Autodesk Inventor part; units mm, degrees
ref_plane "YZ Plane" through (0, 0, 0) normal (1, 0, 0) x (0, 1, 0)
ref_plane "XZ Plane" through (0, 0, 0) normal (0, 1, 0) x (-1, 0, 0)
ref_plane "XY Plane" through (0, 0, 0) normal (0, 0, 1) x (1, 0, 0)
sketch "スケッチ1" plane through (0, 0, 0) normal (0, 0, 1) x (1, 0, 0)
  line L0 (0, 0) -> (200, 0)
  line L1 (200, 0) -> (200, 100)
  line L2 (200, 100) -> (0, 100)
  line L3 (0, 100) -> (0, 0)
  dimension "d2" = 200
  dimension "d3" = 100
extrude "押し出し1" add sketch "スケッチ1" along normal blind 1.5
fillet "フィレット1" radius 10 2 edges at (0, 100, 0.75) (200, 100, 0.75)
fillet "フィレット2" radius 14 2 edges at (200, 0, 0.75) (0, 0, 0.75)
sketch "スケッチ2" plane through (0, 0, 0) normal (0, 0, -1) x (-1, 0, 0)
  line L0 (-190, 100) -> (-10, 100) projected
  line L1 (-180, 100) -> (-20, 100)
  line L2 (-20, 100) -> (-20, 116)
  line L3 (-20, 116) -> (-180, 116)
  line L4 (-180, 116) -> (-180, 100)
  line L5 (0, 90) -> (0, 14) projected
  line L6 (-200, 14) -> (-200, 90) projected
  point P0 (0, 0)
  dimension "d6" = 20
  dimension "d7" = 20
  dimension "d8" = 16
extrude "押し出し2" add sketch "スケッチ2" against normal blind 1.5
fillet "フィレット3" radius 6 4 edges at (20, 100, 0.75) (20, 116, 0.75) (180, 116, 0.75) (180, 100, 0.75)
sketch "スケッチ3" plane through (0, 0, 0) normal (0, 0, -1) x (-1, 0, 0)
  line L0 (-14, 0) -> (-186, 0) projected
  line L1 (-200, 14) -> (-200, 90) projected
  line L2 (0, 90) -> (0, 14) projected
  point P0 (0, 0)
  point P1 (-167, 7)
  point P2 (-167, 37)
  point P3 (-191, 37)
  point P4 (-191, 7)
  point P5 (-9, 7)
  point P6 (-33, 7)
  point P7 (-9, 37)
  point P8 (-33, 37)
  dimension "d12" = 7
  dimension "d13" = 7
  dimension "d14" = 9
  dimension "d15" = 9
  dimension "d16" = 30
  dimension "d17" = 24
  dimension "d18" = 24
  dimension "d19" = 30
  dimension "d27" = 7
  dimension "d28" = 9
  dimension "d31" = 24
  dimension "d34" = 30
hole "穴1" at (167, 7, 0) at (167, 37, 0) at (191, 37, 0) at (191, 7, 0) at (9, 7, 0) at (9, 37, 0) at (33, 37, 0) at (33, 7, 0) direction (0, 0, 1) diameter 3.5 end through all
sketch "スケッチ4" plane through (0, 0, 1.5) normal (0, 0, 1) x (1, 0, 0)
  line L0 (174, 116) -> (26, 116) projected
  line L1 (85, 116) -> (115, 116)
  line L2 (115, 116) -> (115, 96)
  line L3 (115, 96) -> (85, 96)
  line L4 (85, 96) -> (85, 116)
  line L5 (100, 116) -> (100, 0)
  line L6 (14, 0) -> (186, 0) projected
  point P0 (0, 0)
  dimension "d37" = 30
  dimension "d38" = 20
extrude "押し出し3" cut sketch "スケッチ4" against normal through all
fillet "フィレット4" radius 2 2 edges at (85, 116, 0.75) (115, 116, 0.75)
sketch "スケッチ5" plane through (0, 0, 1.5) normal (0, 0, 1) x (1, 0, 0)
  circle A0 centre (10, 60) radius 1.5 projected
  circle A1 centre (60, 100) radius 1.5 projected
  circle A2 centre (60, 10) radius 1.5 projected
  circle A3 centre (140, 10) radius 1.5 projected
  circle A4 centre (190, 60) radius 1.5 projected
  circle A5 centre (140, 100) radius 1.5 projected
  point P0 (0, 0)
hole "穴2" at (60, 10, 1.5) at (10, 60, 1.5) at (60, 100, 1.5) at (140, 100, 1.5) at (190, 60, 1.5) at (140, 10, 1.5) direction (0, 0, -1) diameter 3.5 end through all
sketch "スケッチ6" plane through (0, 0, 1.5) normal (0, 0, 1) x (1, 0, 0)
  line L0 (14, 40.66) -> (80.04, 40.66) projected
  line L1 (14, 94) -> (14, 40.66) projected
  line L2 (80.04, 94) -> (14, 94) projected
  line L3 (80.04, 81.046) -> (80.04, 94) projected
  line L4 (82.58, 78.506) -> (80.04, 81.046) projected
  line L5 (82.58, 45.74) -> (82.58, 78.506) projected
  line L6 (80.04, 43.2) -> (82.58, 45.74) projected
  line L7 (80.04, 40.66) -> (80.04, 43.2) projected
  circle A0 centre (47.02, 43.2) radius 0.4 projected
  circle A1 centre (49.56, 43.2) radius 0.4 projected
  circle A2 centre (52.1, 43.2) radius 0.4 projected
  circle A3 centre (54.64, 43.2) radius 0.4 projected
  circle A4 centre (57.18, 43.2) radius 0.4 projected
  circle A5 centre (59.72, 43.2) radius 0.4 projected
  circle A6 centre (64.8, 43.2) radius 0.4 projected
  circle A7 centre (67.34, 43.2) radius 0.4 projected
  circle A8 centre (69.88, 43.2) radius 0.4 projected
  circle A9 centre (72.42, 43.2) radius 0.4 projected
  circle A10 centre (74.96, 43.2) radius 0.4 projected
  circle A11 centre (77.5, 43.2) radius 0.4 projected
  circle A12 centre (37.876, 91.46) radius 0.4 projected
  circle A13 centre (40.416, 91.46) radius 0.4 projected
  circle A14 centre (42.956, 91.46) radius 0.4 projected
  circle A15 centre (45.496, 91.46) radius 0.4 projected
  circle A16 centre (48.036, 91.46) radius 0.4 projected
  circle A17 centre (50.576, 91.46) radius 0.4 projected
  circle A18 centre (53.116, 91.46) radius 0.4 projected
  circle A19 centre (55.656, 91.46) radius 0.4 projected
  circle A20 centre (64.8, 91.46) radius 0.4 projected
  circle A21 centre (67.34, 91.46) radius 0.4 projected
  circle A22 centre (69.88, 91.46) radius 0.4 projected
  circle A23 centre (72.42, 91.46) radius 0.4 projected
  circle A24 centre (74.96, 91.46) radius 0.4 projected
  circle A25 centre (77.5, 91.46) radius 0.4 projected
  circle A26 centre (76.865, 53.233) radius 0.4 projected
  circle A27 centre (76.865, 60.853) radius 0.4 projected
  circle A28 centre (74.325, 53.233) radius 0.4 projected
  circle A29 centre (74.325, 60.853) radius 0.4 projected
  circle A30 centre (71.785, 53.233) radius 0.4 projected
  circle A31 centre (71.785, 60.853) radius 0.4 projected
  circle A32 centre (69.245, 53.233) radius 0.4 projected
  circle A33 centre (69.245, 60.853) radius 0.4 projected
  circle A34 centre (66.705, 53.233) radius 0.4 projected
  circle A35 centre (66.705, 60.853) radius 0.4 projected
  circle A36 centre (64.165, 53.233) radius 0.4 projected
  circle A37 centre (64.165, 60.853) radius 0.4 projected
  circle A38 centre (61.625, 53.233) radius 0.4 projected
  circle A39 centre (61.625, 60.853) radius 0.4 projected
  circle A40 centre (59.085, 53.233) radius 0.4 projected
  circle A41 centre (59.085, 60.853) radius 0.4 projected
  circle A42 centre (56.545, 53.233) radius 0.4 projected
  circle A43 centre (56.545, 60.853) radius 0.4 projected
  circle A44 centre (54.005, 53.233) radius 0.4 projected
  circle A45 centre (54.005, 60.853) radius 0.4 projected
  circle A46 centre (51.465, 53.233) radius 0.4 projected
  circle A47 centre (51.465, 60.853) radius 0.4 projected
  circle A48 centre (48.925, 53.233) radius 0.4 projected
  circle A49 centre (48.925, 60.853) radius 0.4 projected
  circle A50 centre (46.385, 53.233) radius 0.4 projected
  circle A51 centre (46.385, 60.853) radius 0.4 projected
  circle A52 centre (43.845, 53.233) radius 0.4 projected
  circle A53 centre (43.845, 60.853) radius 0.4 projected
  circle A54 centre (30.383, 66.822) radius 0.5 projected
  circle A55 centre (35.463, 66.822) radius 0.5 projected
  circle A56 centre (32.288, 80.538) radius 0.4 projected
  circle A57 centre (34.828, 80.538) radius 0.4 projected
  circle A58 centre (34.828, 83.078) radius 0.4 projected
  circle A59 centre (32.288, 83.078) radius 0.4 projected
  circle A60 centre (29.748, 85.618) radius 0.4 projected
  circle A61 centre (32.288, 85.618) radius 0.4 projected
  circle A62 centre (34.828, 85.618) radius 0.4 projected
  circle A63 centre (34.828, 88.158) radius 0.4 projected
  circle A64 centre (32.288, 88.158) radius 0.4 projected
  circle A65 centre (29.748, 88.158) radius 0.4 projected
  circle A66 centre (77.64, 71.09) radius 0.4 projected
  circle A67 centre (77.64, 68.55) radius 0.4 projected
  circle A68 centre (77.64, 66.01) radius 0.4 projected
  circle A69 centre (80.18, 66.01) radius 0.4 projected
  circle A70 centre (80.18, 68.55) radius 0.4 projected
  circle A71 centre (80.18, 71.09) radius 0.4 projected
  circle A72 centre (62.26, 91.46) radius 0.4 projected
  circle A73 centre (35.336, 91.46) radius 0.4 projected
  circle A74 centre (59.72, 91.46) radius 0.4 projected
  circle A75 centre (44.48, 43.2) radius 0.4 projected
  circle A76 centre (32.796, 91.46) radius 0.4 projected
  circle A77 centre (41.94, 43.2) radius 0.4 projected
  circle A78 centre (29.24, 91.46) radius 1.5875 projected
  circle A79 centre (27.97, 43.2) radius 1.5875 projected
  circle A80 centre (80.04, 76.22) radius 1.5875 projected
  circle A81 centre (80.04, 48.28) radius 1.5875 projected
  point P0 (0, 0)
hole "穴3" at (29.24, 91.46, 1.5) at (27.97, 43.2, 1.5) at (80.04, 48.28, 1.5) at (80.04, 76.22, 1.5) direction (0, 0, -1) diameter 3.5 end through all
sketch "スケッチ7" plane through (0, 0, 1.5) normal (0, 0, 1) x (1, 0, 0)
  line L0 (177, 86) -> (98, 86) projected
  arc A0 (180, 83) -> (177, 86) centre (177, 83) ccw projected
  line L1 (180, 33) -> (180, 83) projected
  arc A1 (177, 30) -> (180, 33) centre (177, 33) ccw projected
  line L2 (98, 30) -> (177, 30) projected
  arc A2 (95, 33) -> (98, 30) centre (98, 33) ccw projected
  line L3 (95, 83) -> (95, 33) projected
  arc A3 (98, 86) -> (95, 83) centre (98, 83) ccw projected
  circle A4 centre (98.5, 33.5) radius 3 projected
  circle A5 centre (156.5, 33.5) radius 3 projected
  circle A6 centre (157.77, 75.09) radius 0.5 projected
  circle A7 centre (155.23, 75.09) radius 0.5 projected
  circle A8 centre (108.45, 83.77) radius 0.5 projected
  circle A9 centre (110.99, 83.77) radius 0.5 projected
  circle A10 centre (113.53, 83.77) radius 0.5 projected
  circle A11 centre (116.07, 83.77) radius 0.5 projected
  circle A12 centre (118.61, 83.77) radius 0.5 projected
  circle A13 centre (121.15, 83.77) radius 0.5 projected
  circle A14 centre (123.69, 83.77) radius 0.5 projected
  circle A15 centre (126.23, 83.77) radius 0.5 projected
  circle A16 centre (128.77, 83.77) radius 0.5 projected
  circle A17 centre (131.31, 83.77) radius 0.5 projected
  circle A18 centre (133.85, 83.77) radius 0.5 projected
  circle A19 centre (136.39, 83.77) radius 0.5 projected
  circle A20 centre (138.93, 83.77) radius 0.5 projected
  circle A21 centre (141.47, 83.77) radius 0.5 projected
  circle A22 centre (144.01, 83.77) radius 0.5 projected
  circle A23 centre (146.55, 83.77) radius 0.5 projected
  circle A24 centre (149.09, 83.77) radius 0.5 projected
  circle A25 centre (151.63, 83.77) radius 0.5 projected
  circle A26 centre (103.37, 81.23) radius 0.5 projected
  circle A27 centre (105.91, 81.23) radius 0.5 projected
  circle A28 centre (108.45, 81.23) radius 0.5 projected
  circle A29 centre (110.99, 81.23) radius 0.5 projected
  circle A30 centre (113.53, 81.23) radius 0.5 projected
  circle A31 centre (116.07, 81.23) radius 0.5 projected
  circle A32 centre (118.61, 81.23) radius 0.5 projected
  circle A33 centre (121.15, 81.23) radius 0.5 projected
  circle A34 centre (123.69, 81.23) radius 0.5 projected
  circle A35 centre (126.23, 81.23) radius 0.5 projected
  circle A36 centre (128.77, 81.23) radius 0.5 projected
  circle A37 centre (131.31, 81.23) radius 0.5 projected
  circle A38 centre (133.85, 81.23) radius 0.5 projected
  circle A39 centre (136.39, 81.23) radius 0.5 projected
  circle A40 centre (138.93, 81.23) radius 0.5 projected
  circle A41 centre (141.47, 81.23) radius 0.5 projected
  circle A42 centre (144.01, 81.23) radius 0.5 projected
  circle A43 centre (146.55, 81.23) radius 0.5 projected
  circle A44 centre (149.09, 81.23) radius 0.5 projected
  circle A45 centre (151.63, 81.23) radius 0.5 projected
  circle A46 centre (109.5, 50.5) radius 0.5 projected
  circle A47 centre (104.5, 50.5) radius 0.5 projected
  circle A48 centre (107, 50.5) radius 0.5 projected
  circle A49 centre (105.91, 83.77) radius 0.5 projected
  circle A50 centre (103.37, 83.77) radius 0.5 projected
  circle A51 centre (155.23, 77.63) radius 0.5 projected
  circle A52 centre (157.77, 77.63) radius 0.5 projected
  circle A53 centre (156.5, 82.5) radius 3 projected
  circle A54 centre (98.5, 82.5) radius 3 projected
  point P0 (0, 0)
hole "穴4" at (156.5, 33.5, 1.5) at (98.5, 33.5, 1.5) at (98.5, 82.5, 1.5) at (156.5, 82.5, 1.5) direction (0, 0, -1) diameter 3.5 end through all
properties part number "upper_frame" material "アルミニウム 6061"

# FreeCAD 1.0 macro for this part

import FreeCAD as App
import Part
import Sketcher
from FreeCAD import Vector
Q = App.Units.Quantity


def edges_at(feature, points):
    """Names of the edges that pass closest to the given points."""
    edges = feature.Shape.Edges
    near = lambda p: min(range(len(edges)), key=lambda i: edges[i].distToShape(Part.Vertex(*p))[0])
    return sorted({f"Edge{near(p) + 1}" for p in points})

doc = App.newDocument("Part")
params = doc.addObject("Spreadsheet::Sheet", "Params")
for row, (alias, value) in enumerate([
    ("sketch1_width", "200 mm"),
    ("sketch1_height", "100 mm"),
    ("pad1_length", "1.5 mm"),
    ("fillet_radius", "10 mm"),
    ("fillet2_radius", "14 mm"),
    ("sketch2_height", "16 mm"),
    ("sketch2_width", "160 mm"),
    ("pad2_length", "1.5 mm"),
    ("fillet3_radius", "6 mm"),
    ("sketch3_diameter", "3.5 mm"),
    ("hole_diameter", "3.5 mm"),
    ("sketch4_width", "30 mm"),
    ("sketch4_height", "20 mm"),
    ("fillet4_radius", "2 mm"),
    ("sketch5_diameter", "3.5 mm"),
    ("hole2_diameter", "3.5 mm"),
    ("sketch6_diameter", "3.5 mm"),
    ("hole3_diameter", "3.5 mm"),
    ("sketch7_diameter", "3.5 mm"),
    ("hole4_diameter", "3.5 mm"),
], start=1):
    params.set(f"A{row}", alias)
    params.set(f"B{row}", "=" + value)
    params.setAlias(f"B{row}", alias)

body = doc.addObject("PartDesign::Body", "Body")

sketch1 = doc.addObject("Sketcher::SketchObject", "Sketch")
body.addObject(sketch1)
sketch1.AttachmentSupport = (doc.XY_Plane, [""])
sketch1.MapMode = "FlatFace"
sketch1.addGeometry([
    Part.LineSegment(Vector(0, 100, 0), Vector(0, 0, 0)),
    Part.LineSegment(Vector(0, 0, 0), Vector(200, 0, 0)),
    Part.LineSegment(Vector(200, 0, 0), Vector(200, 100, 0)),
    Part.LineSegment(Vector(200, 100, 0), Vector(0, 100, 0)),
], False)
sketch1.addConstraint([
    Sketcher.Constraint("Coincident", 0, 2, 1, 1),
    Sketcher.Constraint("Coincident", 1, 2, 2, 1),
    Sketcher.Constraint("Coincident", 2, 2, 3, 1),
    Sketcher.Constraint("Coincident", 3, 2, 0, 1),
    Sketcher.Constraint("Vertical", 0),
    Sketcher.Constraint("Horizontal", 1),
    Sketcher.Constraint("Vertical", 2),
    Sketcher.Constraint("Horizontal", 3),
    Sketcher.Constraint("Coincident", 0, 2, -1, 1),
    Sketcher.Constraint("DistanceX", 1, 1, 1, 2, Q("200 mm")),
    Sketcher.Constraint("DistanceY", 0, 2, 0, 1, Q("100 mm")),
])
sketch1.setExpression("Constraints[9]", "Params.sketch1_width")
sketch1.setExpression("Constraints[10]", "Params.sketch1_height")
pad1 = doc.addObject("PartDesign::Pad", "Pad")
body.addObject(pad1)
pad1.Profile = sketch1
pad1.setExpression("Length", "Params.pad1_length")
doc.recompute()

fillet = doc.addObject("PartDesign::Fillet", "Fillet")
body.addObject(fillet)
fillet.Base = (pad1, edges_at(pad1, [(0, 100, 0.75), (200, 100, 0.75)]))
fillet.setExpression("Radius", "Params.fillet_radius")
doc.recompute()

fillet2 = doc.addObject("PartDesign::Fillet", "Fillet001")
body.addObject(fillet2)
fillet2.Base = (fillet, edges_at(fillet, [(200, 0, 0.75), (0, 0, 0.75)]))
fillet2.setExpression("Radius", "Params.fillet2_radius")

sketch2 = doc.addObject("Sketcher::SketchObject", "Sketch001")
body.addObject(sketch2)
sketch2.AttachmentSupport = (doc.XY_Plane, [""])
sketch2.MapMode = "FlatFace"
sketch2.addGeometry([
    Part.LineSegment(Vector(180, 116, 0), Vector(180, 100, 0)),
    Part.LineSegment(Vector(180, 100, 0), Vector(20, 100, 0)),
    Part.LineSegment(Vector(20, 100, 0), Vector(20, 116, 0)),
    Part.LineSegment(Vector(20, 116, 0), Vector(180, 116, 0)),
], False)
sketch2.addConstraint([
    Sketcher.Constraint("Coincident", 0, 2, 1, 1),
    Sketcher.Constraint("Coincident", 1, 2, 2, 1),
    Sketcher.Constraint("Coincident", 2, 2, 3, 1),
    Sketcher.Constraint("Coincident", 3, 2, 0, 1),
    Sketcher.Constraint("Vertical", 0),
    Sketcher.Constraint("Horizontal", 1),
    Sketcher.Constraint("Vertical", 2),
    Sketcher.Constraint("Horizontal", 3),
    Sketcher.Constraint("DistanceY", 0, 2, 0, 1, Q("16 mm")),
    Sketcher.Constraint("DistanceX", -1, 1, 1, 2, Q("20 mm")),
    Sketcher.Constraint("DistanceX", 1, 2, 1, 1, Q("160 mm")),
    Sketcher.Constraint("DistanceY", -1, 1, 0, 2, Q("100 mm")),
])
sketch2.setExpression("Constraints[8]", "Params.sketch2_height")
sketch2.setExpression("Constraints[10]", "Params.sketch2_width")
pad2 = doc.addObject("PartDesign::Pad", "Pad001")
body.addObject(pad2)
pad2.Profile = sketch2
pad2.setExpression("Length", "Params.pad2_length")
doc.recompute()

fillet3 = doc.addObject("PartDesign::Fillet", "Fillet002")
body.addObject(fillet3)
fillet3.Base = (pad2, edges_at(pad2, [
    (20, 100, 0.75),
    (20, 116, 0.75),
    (180, 116, 0.75),
    (180, 100, 0.75),
]))
fillet3.setExpression("Radius", "Params.fillet3_radius")

sketch3 = doc.addObject("Sketcher::SketchObject", "Sketch002")
body.addObject(sketch3)
sketch3.AttachmentSupport = (doc.XY_Plane, [""])
sketch3.MapMode = "FlatFace"
sketch3.addGeometry([
    Part.Circle(Vector(167, 7, 0), Vector(0, 0, 1), 1.8),
    Part.Circle(Vector(167, 37, 0), Vector(0, 0, 1), 1.8),
    Part.Circle(Vector(191, 37, 0), Vector(0, 0, 1), 1.8),
    Part.Circle(Vector(191, 7, 0), Vector(0, 0, 1), 1.8),
    Part.Circle(Vector(9, 7, 0), Vector(0, 0, 1), 1.8),
    Part.Circle(Vector(9, 37, 0), Vector(0, 0, 1), 1.8),
    Part.Circle(Vector(33, 37, 0), Vector(0, 0, 1), 1.8),
    Part.Circle(Vector(33, 7, 0), Vector(0, 0, 1), 1.8),
], False)
sketch3.addConstraint([
    Sketcher.Constraint("Equal", 0, 1),
    Sketcher.Constraint("Equal", 1, 2),
    Sketcher.Constraint("Equal", 2, 3),
    Sketcher.Constraint("Equal", 3, 4),
    Sketcher.Constraint("Equal", 4, 5),
    Sketcher.Constraint("Equal", 5, 6),
    Sketcher.Constraint("Equal", 6, 7),
    Sketcher.Constraint("Horizontal", 1, 3, 2, 3),
    Sketcher.Constraint("Horizontal", 0, 3, 3, 3),
    Sketcher.Constraint("Horizontal", 3, 3, 4, 3),
    Sketcher.Constraint("Horizontal", 2, 3, 5, 3),
    Sketcher.Constraint("Horizontal", 5, 3, 6, 3),
    Sketcher.Constraint("Horizontal", 4, 3, 7, 3),
    Sketcher.Constraint("Vertical", 0, 3, 1, 3),
    Sketcher.Constraint("Vertical", 2, 3, 3, 3),
    Sketcher.Constraint("Vertical", 4, 3, 5, 3),
    Sketcher.Constraint("Vertical", 6, 3, 7, 3),
    Sketcher.Constraint("Diameter", 0, Q("3.5 mm")),
    Sketcher.Constraint("DistanceX", -1, 1, 0, 3, Q("167 mm")),
    Sketcher.Constraint("DistanceY", -1, 1, 0, 3, Q("7 mm")),
    Sketcher.Constraint("DistanceY", -1, 1, 1, 3, Q("37 mm")),
    Sketcher.Constraint("DistanceX", -1, 1, 2, 3, Q("191 mm")),
    Sketcher.Constraint("DistanceX", -1, 1, 4, 3, Q("9 mm")),
    Sketcher.Constraint("DistanceX", -1, 1, 6, 3, Q("33 mm")),
])
sketch3.setExpression("Constraints[17]", "Params.sketch3_diameter")
doc.recompute()
hole = doc.addObject("PartDesign::Hole", "Hole")
body.addObject(hole)
hole.Profile = sketch3
hole.ThreadType = "None"
hole.setExpression("Diameter", "Params.hole_diameter")
hole.DepthType = "ThroughAll"
hole.Reversed = True

sketch4 = doc.addObject("Sketcher::SketchObject", "Sketch003")
body.addObject(sketch4)
sketch4.AttachmentSupport = (doc.XY_Plane, [""])
sketch4.MapMode = "FlatFace"
sketch4.AttachmentOffset = App.Placement(Vector(0, 0, 1.5), App.Rotation())
sketch4.addGeometry([
    Part.LineSegment(Vector(115, 96, 0), Vector(115, 116, 0)),
    Part.LineSegment(Vector(115, 116, 0), Vector(85, 116, 0)),
    Part.LineSegment(Vector(85, 116, 0), Vector(85, 96, 0)),
    Part.LineSegment(Vector(85, 96, 0), Vector(115, 96, 0)),
], False)
sketch4.addConstraint([
    Sketcher.Constraint("Coincident", 0, 2, 1, 1),
    Sketcher.Constraint("Coincident", 1, 2, 2, 1),
    Sketcher.Constraint("Coincident", 2, 2, 3, 1),
    Sketcher.Constraint("Coincident", 3, 2, 0, 1),
    Sketcher.Constraint("Vertical", 0),
    Sketcher.Constraint("Horizontal", 1),
    Sketcher.Constraint("Vertical", 2),
    Sketcher.Constraint("Horizontal", 3),
    Sketcher.Constraint("DistanceX", 1, 2, 1, 1, Q("30 mm")),
    Sketcher.Constraint("DistanceY", 0, 1, 0, 2, Q("20 mm")),
    Sketcher.Constraint("DistanceX", -1, 1, 0, 2, Q("115 mm")),
    Sketcher.Constraint("DistanceY", -1, 1, 0, 2, Q("116 mm")),
])
sketch4.setExpression("Constraints[8]", "Params.sketch4_width")
sketch4.setExpression("Constraints[9]", "Params.sketch4_height")
pocket1 = doc.addObject("PartDesign::Pocket", "Pocket")
body.addObject(pocket1)
pocket1.Profile = sketch4
pocket1.Type = "ThroughAll"
doc.recompute()

fillet4 = doc.addObject("PartDesign::Fillet", "Fillet003")
body.addObject(fillet4)
fillet4.Base = (pocket1, edges_at(pocket1, [(85, 116, 0.75), (115, 116, 0.75)]))
fillet4.setExpression("Radius", "Params.fillet4_radius")

sketch5 = doc.addObject("Sketcher::SketchObject", "Sketch004")
body.addObject(sketch5)
sketch5.AttachmentSupport = (doc.XY_Plane, [""])
sketch5.MapMode = "FlatFace"
sketch5.AttachmentOffset = App.Placement(Vector(0, 0, 1.5), App.Rotation())
sketch5.addGeometry([
    Part.Circle(Vector(60, 10, 0), Vector(0, 0, 1), 1.8),
    Part.Circle(Vector(10, 60, 0), Vector(0, 0, 1), 1.8),
    Part.Circle(Vector(60, 100, 0), Vector(0, 0, 1), 1.8),
    Part.Circle(Vector(140, 100, 0), Vector(0, 0, 1), 1.8),
    Part.Circle(Vector(190, 60, 0), Vector(0, 0, 1), 1.8),
    Part.Circle(Vector(140, 10, 0), Vector(0, 0, 1), 1.8),
], False)
sketch5.addConstraint([
    Sketcher.Constraint("Equal", 0, 1),
    Sketcher.Constraint("Equal", 1, 2),
    Sketcher.Constraint("Equal", 2, 3),
    Sketcher.Constraint("Equal", 3, 4),
    Sketcher.Constraint("Equal", 4, 5),
    Sketcher.Constraint("Horizontal", 2, 3, 3, 3),
    Sketcher.Constraint("Horizontal", 1, 3, 4, 3),
    Sketcher.Constraint("Horizontal", 0, 3, 5, 3),
    Sketcher.Constraint("Vertical", 0, 3, 2, 3),
    Sketcher.Constraint("Vertical", 3, 3, 5, 3),
    Sketcher.Constraint("Diameter", 0, Q("3.5 mm")),
    Sketcher.Constraint("DistanceX", -1, 1, 0, 3, Q("60 mm")),
    Sketcher.Constraint("DistanceY", -1, 1, 0, 3, Q("10 mm")),
    Sketcher.Constraint("DistanceX", -1, 1, 1, 3, Q("10 mm")),
    Sketcher.Constraint("DistanceY", -1, 1, 1, 3, Q("60 mm")),
    Sketcher.Constraint("DistanceY", -1, 1, 2, 3, Q("100 mm")),
    Sketcher.Constraint("DistanceX", -1, 1, 3, 3, Q("140 mm")),
    Sketcher.Constraint("DistanceX", -1, 1, 4, 3, Q("190 mm")),
])
sketch5.setExpression("Constraints[10]", "Params.sketch5_diameter")
doc.recompute()
hole2 = doc.addObject("PartDesign::Hole", "Hole001")
body.addObject(hole2)
hole2.Profile = sketch5
hole2.ThreadType = "None"
hole2.setExpression("Diameter", "Params.hole2_diameter")
hole2.DepthType = "ThroughAll"

sketch6 = doc.addObject("Sketcher::SketchObject", "Sketch005")
body.addObject(sketch6)
sketch6.AttachmentSupport = (doc.XY_Plane, [""])
sketch6.MapMode = "FlatFace"
sketch6.AttachmentOffset = App.Placement(Vector(0, 0, 1.5), App.Rotation())
sketch6.addGeometry([
    Part.Circle(Vector(29.2, 91.5, 0), Vector(0, 0, 1), 1.8),
    Part.Circle(Vector(28, 43.2, 0), Vector(0, 0, 1), 1.8),
    Part.Circle(Vector(80, 48.3, 0), Vector(0, 0, 1), 1.8),
    Part.Circle(Vector(80, 76.2, 0), Vector(0, 0, 1), 1.8),
], False)
sketch6.addConstraint([
    Sketcher.Constraint("Equal", 0, 1),
    Sketcher.Constraint("Equal", 1, 2),
    Sketcher.Constraint("Equal", 2, 3),
    Sketcher.Constraint("Vertical", 2, 3, 3, 3),
    Sketcher.Constraint("Diameter", 0, Q("3.5 mm")),
    Sketcher.Constraint("DistanceY", -1, 1, 1, 3, Q("43.2 mm")),
    Sketcher.Constraint("DistanceX", 0, 3, 2, 3, Q("50.8 mm")),
    Sketcher.Constraint("DistanceX", -1, 1, 0, 3, Q("29.24 mm")),
    Sketcher.Constraint("DistanceY", -1, 1, 0, 3, Q("91.46 mm")),
    Sketcher.Constraint("DistanceX", -1, 1, 1, 3, Q("27.97 mm")),
    Sketcher.Constraint("DistanceY", -1, 1, 2, 3, Q("48.28 mm")),
    Sketcher.Constraint("DistanceY", -1, 1, 3, 3, Q("76.22 mm")),
])
sketch6.setExpression("Constraints[4]", "Params.sketch6_diameter")
doc.recompute()
hole3 = doc.addObject("PartDesign::Hole", "Hole002")
body.addObject(hole3)
hole3.Profile = sketch6
hole3.ThreadType = "None"
hole3.setExpression("Diameter", "Params.hole3_diameter")
hole3.DepthType = "ThroughAll"

sketch7 = doc.addObject("Sketcher::SketchObject", "Sketch006")
body.addObject(sketch7)
sketch7.AttachmentSupport = (doc.XY_Plane, [""])
sketch7.MapMode = "FlatFace"
sketch7.AttachmentOffset = App.Placement(Vector(0, 0, 1.5), App.Rotation())
sketch7.addGeometry([
    Part.Circle(Vector(156.5, 33.5, 0), Vector(0, 0, 1), 1.8),
    Part.Circle(Vector(98.5, 33.5, 0), Vector(0, 0, 1), 1.8),
    Part.Circle(Vector(98.5, 82.5, 0), Vector(0, 0, 1), 1.8),
    Part.Circle(Vector(156.5, 82.5, 0), Vector(0, 0, 1), 1.8),
], False)
sketch7.addConstraint([
    Sketcher.Constraint("Equal", 0, 1),
    Sketcher.Constraint("Equal", 1, 2),
    Sketcher.Constraint("Equal", 2, 3),
    Sketcher.Constraint("Horizontal", 0, 3, 1, 3),
    Sketcher.Constraint("Horizontal", 2, 3, 3, 3),
    Sketcher.Constraint("Vertical", 1, 3, 2, 3),
    Sketcher.Constraint("Vertical", 0, 3, 3, 3),
    Sketcher.Constraint("Diameter", 0, Q("3.5 mm")),
    Sketcher.Constraint("DistanceX", 1, 3, 0, 3, Q("58 mm")),
    Sketcher.Constraint("DistanceY", 1, 3, 2, 3, Q("49 mm")),
    Sketcher.Constraint("DistanceX", -1, 1, 0, 3, Q("156.5 mm")),
    Sketcher.Constraint("DistanceY", -1, 1, 0, 3, Q("33.5 mm")),
])
sketch7.setExpression("Constraints[7]", "Params.sketch7_diameter")
doc.recompute()
hole4 = doc.addObject("PartDesign::Hole", "Hole003")
body.addObject(hole4)
hole4.Profile = sketch7
hole4.ThreadType = "None"
hole4.setExpression("Diameter", "Params.hole4_diameter")
hole4.DepthType = "ThroughAll"

doc.recompute()
